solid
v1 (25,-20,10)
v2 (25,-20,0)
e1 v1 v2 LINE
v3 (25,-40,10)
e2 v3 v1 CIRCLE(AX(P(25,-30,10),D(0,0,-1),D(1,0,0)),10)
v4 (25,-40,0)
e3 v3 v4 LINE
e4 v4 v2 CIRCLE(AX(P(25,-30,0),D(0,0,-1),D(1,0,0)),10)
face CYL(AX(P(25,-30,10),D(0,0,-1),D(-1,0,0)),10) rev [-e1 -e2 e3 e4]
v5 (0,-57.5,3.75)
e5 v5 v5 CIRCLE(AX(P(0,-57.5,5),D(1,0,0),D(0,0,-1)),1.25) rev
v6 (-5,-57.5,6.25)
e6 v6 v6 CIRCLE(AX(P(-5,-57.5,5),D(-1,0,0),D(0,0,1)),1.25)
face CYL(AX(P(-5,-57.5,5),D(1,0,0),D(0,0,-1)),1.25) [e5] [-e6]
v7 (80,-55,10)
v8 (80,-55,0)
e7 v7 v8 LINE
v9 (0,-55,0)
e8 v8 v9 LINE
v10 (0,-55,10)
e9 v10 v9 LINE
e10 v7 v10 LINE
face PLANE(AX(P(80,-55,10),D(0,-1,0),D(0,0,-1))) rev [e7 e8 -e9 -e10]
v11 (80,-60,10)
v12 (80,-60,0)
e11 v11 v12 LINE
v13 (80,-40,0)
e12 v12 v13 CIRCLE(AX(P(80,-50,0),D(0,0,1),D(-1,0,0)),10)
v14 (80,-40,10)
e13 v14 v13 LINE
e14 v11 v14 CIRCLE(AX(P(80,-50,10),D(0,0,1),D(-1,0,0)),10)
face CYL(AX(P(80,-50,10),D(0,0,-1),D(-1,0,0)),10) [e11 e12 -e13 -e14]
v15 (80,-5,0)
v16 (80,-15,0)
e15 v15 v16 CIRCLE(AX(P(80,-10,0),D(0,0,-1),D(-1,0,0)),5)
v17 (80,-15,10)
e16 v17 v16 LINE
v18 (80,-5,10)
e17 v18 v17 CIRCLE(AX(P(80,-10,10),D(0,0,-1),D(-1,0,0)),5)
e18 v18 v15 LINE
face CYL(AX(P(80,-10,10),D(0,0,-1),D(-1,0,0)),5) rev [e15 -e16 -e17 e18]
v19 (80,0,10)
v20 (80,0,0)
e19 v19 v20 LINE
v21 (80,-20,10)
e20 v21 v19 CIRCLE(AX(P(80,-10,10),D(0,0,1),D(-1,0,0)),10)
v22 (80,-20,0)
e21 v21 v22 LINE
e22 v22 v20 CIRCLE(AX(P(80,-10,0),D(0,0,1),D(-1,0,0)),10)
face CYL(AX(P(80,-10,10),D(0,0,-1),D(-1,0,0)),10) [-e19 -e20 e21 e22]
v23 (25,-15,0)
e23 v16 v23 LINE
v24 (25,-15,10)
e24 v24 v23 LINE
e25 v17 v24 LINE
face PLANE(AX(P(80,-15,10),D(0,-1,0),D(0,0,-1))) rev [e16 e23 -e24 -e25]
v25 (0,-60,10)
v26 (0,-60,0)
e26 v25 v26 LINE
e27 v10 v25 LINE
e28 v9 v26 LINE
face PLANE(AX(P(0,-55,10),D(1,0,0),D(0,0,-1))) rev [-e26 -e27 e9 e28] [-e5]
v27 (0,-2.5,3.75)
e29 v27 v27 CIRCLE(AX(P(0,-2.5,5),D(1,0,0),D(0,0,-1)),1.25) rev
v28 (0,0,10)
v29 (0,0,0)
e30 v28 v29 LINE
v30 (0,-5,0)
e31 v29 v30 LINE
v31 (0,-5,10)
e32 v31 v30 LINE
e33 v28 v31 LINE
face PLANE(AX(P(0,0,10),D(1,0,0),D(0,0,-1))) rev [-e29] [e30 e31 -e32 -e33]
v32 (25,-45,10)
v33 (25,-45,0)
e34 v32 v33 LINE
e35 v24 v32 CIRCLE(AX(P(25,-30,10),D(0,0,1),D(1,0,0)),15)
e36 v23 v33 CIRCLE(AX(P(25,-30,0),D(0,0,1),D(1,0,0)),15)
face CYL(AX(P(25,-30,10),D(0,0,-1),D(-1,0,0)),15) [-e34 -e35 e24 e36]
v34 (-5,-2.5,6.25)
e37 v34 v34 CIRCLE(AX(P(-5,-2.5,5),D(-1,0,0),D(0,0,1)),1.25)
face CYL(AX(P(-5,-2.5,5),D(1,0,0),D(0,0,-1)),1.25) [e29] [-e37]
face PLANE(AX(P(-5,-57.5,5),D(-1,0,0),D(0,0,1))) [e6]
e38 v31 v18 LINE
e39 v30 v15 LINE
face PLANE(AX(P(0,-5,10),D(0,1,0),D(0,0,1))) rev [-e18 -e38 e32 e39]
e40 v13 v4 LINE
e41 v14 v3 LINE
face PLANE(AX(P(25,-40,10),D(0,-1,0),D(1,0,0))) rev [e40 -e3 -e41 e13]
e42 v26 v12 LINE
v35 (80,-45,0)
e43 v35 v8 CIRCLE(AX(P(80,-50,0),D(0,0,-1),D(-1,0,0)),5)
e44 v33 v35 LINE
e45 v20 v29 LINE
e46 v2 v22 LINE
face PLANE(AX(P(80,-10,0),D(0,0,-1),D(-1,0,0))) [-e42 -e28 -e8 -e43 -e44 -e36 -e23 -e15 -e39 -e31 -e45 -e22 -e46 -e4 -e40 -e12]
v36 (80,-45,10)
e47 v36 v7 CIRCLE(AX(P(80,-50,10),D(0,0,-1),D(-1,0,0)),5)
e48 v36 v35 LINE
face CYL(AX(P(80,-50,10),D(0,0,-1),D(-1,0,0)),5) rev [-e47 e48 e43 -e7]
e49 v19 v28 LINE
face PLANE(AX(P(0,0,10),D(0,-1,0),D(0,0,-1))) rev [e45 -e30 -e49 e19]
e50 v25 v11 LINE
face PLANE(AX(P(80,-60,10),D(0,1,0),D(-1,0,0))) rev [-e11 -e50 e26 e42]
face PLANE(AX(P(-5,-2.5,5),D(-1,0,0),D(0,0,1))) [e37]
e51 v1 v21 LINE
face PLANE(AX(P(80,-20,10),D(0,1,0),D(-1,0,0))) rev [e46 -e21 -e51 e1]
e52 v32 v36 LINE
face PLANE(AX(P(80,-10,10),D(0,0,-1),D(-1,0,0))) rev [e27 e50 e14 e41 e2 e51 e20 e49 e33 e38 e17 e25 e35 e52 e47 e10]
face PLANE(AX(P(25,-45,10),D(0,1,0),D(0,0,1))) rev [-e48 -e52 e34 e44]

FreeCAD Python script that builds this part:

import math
import FreeCAD as App
import Part
import Sketcher
from FreeCAD import Vector

doc = App.newDocument("Part")
body = doc.addObject("PartDesign::Body", "Body")

# Sketch on XY plane
sketch1 = body.newObject("Sketcher::SketchObject", "Sketch")
sketch1.AttachmentSupport = (doc.getObject("XY_Plane"), [""])
sketch1.MapMode = "FlatFace"
sketch1.addGeometry([
    Part.LineSegment(Vector(80, 0, 0), Vector(0, 0, 0)),  # 0
    Part.LineSegment(Vector(0, 0, 0), Vector(0, -5, 0)),  # 1
    Part.LineSegment(Vector(0, -5, 0), Vector(80, -5, 0)),  # 2
    Part.ArcOfCircle(Part.Circle(Vector(80, -10, 0), Vector(0, 0, 1), 5), math.radians(-90), math.radians(90)),  # 3
    Part.LineSegment(Vector(80, -15, 0), Vector(25, -15, 0)),  # 4
    Part.ArcOfCircle(Part.Circle(Vector(25, -30, 0), Vector(0, 0, 1), 15), math.radians(90), math.radians(270)),  # 5
    Part.LineSegment(Vector(25, -45, 0), Vector(80, -45, 0)),  # 6
    Part.ArcOfCircle(Part.Circle(Vector(80, -50, 0), Vector(0, 0, 1), 5), math.radians(-90), math.radians(90)),  # 7
    Part.LineSegment(Vector(80, -55, 0), Vector(0, -55, 0)),  # 8
    Part.LineSegment(Vector(0, -55, 0), Vector(0, -60, 0)),  # 9
    Part.LineSegment(Vector(0, -60, 0), Vector(80, -60, 0)),  # 10
    Part.ArcOfCircle(Part.Circle(Vector(80, -50, 0), Vector(0, 0, 1), 10), math.radians(-90), math.radians(90)),  # 11
    Part.LineSegment(Vector(80, -40, 0), Vector(25, -40, 0)),  # 12
    Part.ArcOfCircle(Part.Circle(Vector(25, -30, 0), Vector(0, 0, 1), 10), math.radians(90), math.radians(270)),  # 13
    Part.LineSegment(Vector(25, -20, 0), Vector(80, -20, 0)),  # 14
    Part.ArcOfCircle(Part.Circle(Vector(80, -10, 0), Vector(0, 0, 1), 10), math.radians(-90), math.radians(90)),  # 15
], False)
sketch1.addConstraint([
    Sketcher.Constraint("Coincident", 0, 2, 1, 1),
    Sketcher.Constraint("Coincident", 1, 2, 2, 1),
    Sketcher.Constraint("Tangent", 2, 2, 3, 2),
    Sketcher.Constraint("Tangent", 3, 1, 4, 1),
    Sketcher.Constraint("Tangent", 4, 2, 5, 1),
    Sketcher.Constraint("Tangent", 5, 2, 6, 1),
    Sketcher.Constraint("Tangent", 6, 2, 7, 2),
    Sketcher.Constraint("Tangent", 7, 1, 8, 1),
    Sketcher.Constraint("Coincident", 8, 2, 9, 1),
    Sketcher.Constraint("Coincident", 9, 2, 10, 1),
    Sketcher.Constraint("Tangent", 10, 2, 11, 1),
    Sketcher.Constraint("Tangent", 11, 2, 12, 1),
    Sketcher.Constraint("Tangent", 12, 2, 13, 2),
    Sketcher.Constraint("Tangent", 13, 1, 14, 1),
    Sketcher.Constraint("Tangent", 14, 2, 15, 1),
    Sketcher.Constraint("Tangent", 15, 2, 0, 1),
    Sketcher.Constraint("Horizontal", 0),
    Sketcher.Constraint("Vertical", 1),
    Sketcher.Constraint("Horizontal", 2),
    Sketcher.Constraint("Horizontal", 4),
    Sketcher.Constraint("Horizontal", 6),
    Sketcher.Constraint("Horizontal", 8),
    Sketcher.Constraint("Vertical", 9),
    Sketcher.Constraint("Horizontal", 10),
    Sketcher.Constraint("Horizontal", 12),
    Sketcher.Constraint("Horizontal", 14),
    Sketcher.Constraint("Coincident", 0, 2, -1, 1),
    Sketcher.Constraint("Coincident", 11, 3, 7, 3),
    Sketcher.Constraint("Coincident", 13, 3, 5, 3),
    Sketcher.Constraint("Coincident", 15, 3, 3, 3),
    Sketcher.Constraint("Equal", 3, 7),
    Sketcher.Constraint("Equal", 11, 13),
    Sketcher.Constraint("PointOnObject", 8, 2, -2),
    Sketcher.Constraint("Vertical", 3, 3, 7, 3),
    Sketcher.Constraint("Radius", 3, 5.0),
    Sketcher.Constraint("Radius", 5, 15.0),
    Sketcher.Constraint("DistanceX", 0, 2, 0, 1, 80.0),
    Sketcher.Constraint("DistanceX", 4, 2, 4, 1, 55.0),
])
pad1 = body.newObject("PartDesign::Pad", "Pad")
pad1.Profile = sketch1
pad1.Length = 10

# Sketch on YZ plane
sketch2 = body.newObject("Sketcher::SketchObject", "Sketch001")
sketch2.AttachmentSupport = (doc.getObject("YZ_Plane"), [""])
sketch2.MapMode = "FlatFace"
sketch2.addGeometry(Part.Circle(Vector(-2.5, 5, 0), Vector(0, 0, 1), 1.2), False)
sketch2.addConstraint([
    Sketcher.Constraint("Diameter", 0, 2.5),
    Sketcher.Constraint("DistanceY", -1, 1, 0, 3, 5.0),
    Sketcher.Constraint("DistanceX", 0, 3, -1, 1, 2.5),
])
pad2 = body.newObject("PartDesign::Pad", "Pad001")
pad2.Profile = sketch2
pad2.Length = 5
pad2.Reversed = True

# Sketch on YZ plane
sketch3 = body.newObject("Sketcher::SketchObject", "Sketch002")
sketch3.AttachmentSupport = (doc.getObject("YZ_Plane"), [""])
sketch3.MapMode = "FlatFace"
sketch3.addGeometry(Part.Circle(Vector(-57.5, 5, 0), Vector(0, 0, 1), 1.2), False)
sketch3.addConstraint([
    Sketcher.Constraint("Diameter", 0, 2.5),
    Sketcher.Constraint("DistanceY", -1, 1, 0, 3, 5.0),
    Sketcher.Constraint("DistanceX", 0, 3, -1, 1, 57.5),
])
pad3 = body.newObject("PartDesign::Pad", "Pad002")
pad3.Profile = sketch3
pad3.Length = 5
pad3.Reversed = True

doc.recompute()
